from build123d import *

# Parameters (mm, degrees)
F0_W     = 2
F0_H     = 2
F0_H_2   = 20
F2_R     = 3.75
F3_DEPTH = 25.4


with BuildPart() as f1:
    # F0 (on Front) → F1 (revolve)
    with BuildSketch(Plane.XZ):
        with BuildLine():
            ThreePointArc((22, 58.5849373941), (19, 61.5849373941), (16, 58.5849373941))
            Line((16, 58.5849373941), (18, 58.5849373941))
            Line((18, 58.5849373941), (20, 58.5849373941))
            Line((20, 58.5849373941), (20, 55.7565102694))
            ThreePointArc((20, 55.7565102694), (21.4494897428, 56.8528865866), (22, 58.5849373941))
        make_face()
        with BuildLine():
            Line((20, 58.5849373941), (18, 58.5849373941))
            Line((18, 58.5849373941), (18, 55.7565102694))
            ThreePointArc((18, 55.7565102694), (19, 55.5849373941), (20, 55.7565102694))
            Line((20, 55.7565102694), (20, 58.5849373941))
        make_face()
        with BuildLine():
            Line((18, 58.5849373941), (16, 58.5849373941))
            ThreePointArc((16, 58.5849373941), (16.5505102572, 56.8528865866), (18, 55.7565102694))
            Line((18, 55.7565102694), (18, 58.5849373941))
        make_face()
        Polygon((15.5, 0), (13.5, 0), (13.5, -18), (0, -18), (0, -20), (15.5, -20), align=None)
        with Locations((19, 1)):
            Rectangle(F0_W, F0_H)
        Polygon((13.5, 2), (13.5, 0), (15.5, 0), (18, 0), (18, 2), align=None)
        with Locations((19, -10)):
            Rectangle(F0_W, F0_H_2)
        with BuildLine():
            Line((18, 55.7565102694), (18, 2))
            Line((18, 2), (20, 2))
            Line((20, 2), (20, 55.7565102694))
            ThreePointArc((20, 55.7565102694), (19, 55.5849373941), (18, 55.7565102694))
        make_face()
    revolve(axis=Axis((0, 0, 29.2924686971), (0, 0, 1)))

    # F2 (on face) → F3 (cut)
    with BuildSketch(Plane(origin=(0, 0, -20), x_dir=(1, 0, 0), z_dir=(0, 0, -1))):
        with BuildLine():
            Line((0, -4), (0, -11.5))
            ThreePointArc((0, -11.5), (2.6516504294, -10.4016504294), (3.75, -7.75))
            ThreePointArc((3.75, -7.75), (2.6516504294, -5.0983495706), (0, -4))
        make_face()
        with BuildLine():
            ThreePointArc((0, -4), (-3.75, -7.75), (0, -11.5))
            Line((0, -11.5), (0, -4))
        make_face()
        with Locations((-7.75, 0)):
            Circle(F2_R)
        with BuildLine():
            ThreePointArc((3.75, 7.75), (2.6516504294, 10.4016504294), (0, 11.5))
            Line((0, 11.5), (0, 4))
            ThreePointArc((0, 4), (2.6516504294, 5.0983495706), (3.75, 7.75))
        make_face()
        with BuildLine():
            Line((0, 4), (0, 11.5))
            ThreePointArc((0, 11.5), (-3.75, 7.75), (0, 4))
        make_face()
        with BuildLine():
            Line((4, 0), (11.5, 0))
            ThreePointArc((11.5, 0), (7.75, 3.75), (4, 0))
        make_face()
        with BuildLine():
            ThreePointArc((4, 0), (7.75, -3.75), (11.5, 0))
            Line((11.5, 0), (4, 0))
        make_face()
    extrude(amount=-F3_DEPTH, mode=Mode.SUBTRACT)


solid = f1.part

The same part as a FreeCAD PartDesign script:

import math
import FreeCAD as App
import Part
import Sketcher
from FreeCAD import Vector
Q = App.Units.Quantity

doc = App.newDocument("Part")
body = doc.addObject("PartDesign::Body", "Body")

# Sketch on XZ plane
sketch1 = doc.addObject("Sketcher::SketchObject", "Sketch")
body.addObject(sketch1)
sketch1.AttachmentSupport = (doc.XZ_Plane, [""])
sketch1.MapMode = "FlatFace"
sketch1.addGeometry(Part.ArcOfCircle(Part.Circle(Vector(19, 58.6, 0), Vector(0, 0, 1), 3), math.radians(0), math.radians(180)), False)
sketch1.addGeometry(Part.ArcOfCircle(Part.Circle(Vector(19, 58.6, 0), Vector(0, 0, 1), 3), math.radians(180), math.radians(251)), False)
sketch1.addGeometry(Part.LineSegment(Vector(18, 55.8, 0), Vector(18, 2, 0)), False)
sketch1.addGeometry(Part.LineSegment(Vector(18, 2, 0), Vector(13.5, 2, 0)), False)
sketch1.addGeometry(Part.LineSegment(Vector(13.5, 2, 0), Vector(13.5, -18, 0)), False)
sketch1.addGeometry(Part.LineSegment(Vector(13.5, -18, 0), Vector(0, -18, 0)), False)
sketch1.addGeometry(Part.LineSegment(Vector(0, -18, 0), Vector(0, -20, 0)), False)
sketch1.addGeometry(Part.LineSegment(Vector(0, -20, 0), Vector(15.5, -20, 0)), False)
sketch1.addGeometry(Part.LineSegment(Vector(15.5, -20, 0), Vector(15.5, 0, 0)), False)
sketch1.addGeometry(Part.LineSegment(Vector(15.5, 0, 0), Vector(18, 0, 0)), False)
sketch1.addGeometry(Part.LineSegment(Vector(18, 0, 0), Vector(18, -20, 0)), False)
sketch1.addGeometry(Part.LineSegment(Vector(18, -20, 0), Vector(20, -20, 0)), False)
sketch1.addGeometry(Part.LineSegment(Vector(20, -20, 0), Vector(20, 55.8, 0)), False)
sketch1.addGeometry(Part.ArcOfCircle(Part.Circle(Vector(19, 58.6, 0), Vector(0, 0, 1), 3), math.radians(-71), math.radians(0)), False)
sketch1.addConstraint(Sketcher.Constraint("Tangent", 0, 2, 1, 1))
sketch1.addConstraint(Sketcher.Constraint("Coincident", 1, 2, 2, 1))
sketch1.addConstraint(Sketcher.Constraint("Coincident", 2, 2, 3, 1))
sketch1.addConstraint(Sketcher.Constraint("Coincident", 3, 2, 4, 1))
sketch1.addConstraint(Sketcher.Constraint("Coincident", 4, 2, 5, 1))
sketch1.addConstraint(Sketcher.Constraint("Coincident", 5, 2, 6, 1))
sketch1.addConstraint(Sketcher.Constraint("Coincident", 6, 2, 7, 1))
sketch1.addConstraint(Sketcher.Constraint("Coincident", 7, 2, 8, 1))
sketch1.addConstraint(Sketcher.Constraint("Coincident", 8, 2, 9, 1))
sketch1.addConstraint(Sketcher.Constraint("Coincident", 9, 2, 10, 1))
sketch1.addConstraint(Sketcher.Constraint("Coincident", 10, 2, 11, 1))
sketch1.addConstraint(Sketcher.Constraint("Coincident", 11, 2, 12, 1))
sketch1.addConstraint(Sketcher.Constraint("Coincident", 12, 2, 13, 1))
sketch1.addConstraint(Sketcher.Constraint("Tangent", 13, 2, 0, 1))
sketch1.addConstraint(Sketcher.Constraint("Vertical", 2))
sketch1.addConstraint(Sketcher.Constraint("Horizontal", 3))
sketch1.addConstraint(Sketcher.Constraint("Vertical", 4))
sketch1.addConstraint(Sketcher.Constraint("Horizontal", 5))
sketch1.addConstraint(Sketcher.Constraint("Vertical", 6))
sketch1.addConstraint(Sketcher.Constraint("Horizontal", 7))
sketch1.addConstraint(Sketcher.Constraint("Vertical", 8))
sketch1.addConstraint(Sketcher.Constraint("Horizontal", 9))
sketch1.addConstraint(Sketcher.Constraint("Vertical", 10))
sketch1.addConstraint(Sketcher.Constraint("Horizontal", 11))
sketch1.addConstraint(Sketcher.Constraint("Vertical", 12))
sketch1.addConstraint(Sketcher.Constraint("Equal", 0, 1))
sketch1.addConstraint(Sketcher.Constraint("Equal", 1, 13))
sketch1.addConstraint(Sketcher.Constraint("PointOnObject", 5, 2, -2))
sketch1.addConstraint(Sketcher.Constraint("PointOnObject", 8, 2, -1))
sketch1.addConstraint(Sketcher.Constraint("Horizontal", 13, 3, 0, 2))
sketch1.addConstraint(Sketcher.Constraint("Horizontal", 7, 2, 10, 2))
sketch1.addConstraint(Sketcher.Constraint("Horizontal", 1, 2, 12, 2))
sketch1.addConstraint(Sketcher.Constraint("Horizontal", 0, 2, 13, 2))
sketch1.addConstraint(Sketcher.Constraint("Vertical", 2, 2, 9, 2))
sketch1.addConstraint(Sketcher.Constraint("Equal", 11, 6))
sketch1.addConstraint(Sketcher.Constraint("Equal", 4, 8))
sketch1.addConstraint(Sketcher.Constraint("Radius", 0, Q("3 mm")))
sketch1.addConstraint(Sketcher.Constraint("DistanceX", 11, 1, 11, 2, Q("2 mm")))
sketch1.addConstraint(Sketcher.Constraint("DistanceY", 4, 2, 4, 1, Q("20 mm")))
sketch1.addConstraint(Sketcher.Constraint("DistanceX", 3, 2, 3, 1, Q("4.5 mm")))
sketch1.addConstraint(Sketcher.Constraint("DistanceX", 5, 2, 5, 1, Q("13.5 mm")))
sketch1.addConstraint(Sketcher.Constraint("DistanceX", 7, 1, 7, 2, Q("15.5 mm")))
sketch1.addConstraint(Sketcher.Constraint("DistanceY", 2, 2, 2, 1, Q("53.75651 mm")))
revolution = doc.addObject("PartDesign::Revolution", "Revolution")
body.addObject(revolution)
revolution.Profile = sketch1
revolution.ReferenceAxis = (sketch1, ["V_Axis"])
revolution.Angle = 360

# Sketch on XY plane
sketch2 = doc.addObject("Sketcher::SketchObject", "Sketch001")
body.addObject(sketch2)
sketch2.AttachmentSupport = (doc.XY_Plane, [""])
sketch2.MapMode = "FlatFace"
sketch2.AttachmentOffset = App.Placement(Vector(0, 0, -20), App.Rotation())
sketch2.addGeometry(Part.ArcOfCircle(Part.Circle(Vector(0, 7.8, 0), Vector(0, 0, 1), 3.8), math.radians(0), math.radians(90)), False)
sketch2.addGeometry(Part.ArcOfCircle(Part.Circle(Vector(0, 7.8, 0), Vector(0, 0, 1), 3.8), math.radians(-90), math.radians(0)), False)
sketch2.addGeometry(Part.ArcOfCircle(Part.Circle(Vector(0, 7.8, 0), Vector(0, 0, 1), 3.8), math.radians(90), math.radians(270)), False)
sketch2.addGeometry(Part.Circle(Vector(-7.8, 0, 0), Vector(0, 0, 1), 3.8), False)
sketch2.addGeometry(Part.ArcOfCircle(Part.Circle(Vector(0, -7.8, 0), Vector(0, 0, 1), 3.8), math.radians(-90), math.radians(0)), False)
sketch2.addGeometry(Part.ArcOfCircle(Part.Circle(Vector(0, -7.8, 0), Vector(0, 0, 1), 3.8), math.radians(90), math.radians(270)), False)
sketch2.addGeometry(Part.ArcOfCircle(Part.Circle(Vector(0, -7.8, 0), Vector(0, 0, 1), 3.8), math.radians(0), math.radians(90)), False)
sketch2.addGeometry(Part.Circle(Vector(7.8, 0, 0), Vector(0, 0, 1), 3.8), False)
sketch2.addConstraint(Sketcher.Constraint("Tangent", 0, 1, 1, 2))
sketch2.addConstraint(Sketcher.Constraint("Tangent", 1, 1, 2, 2))
sketch2.addConstraint(Sketcher.Constraint("Tangent", 2, 1, 0, 2))
sketch2.addConstraint(Sketcher.Constraint("Tangent", 4, 1, 5, 2))
sketch2.addConstraint(Sketcher.Constraint("Tangent", 5, 1, 6, 2))
sketch2.addConstraint(Sketcher.Constraint("Tangent", 6, 1, 4, 2))
sketch2.addConstraint(Sketcher.Constraint("Equal", 2, 3))
sketch2.addConstraint(Sketcher.Constraint("Equal", 3, 4))
sketch2.addConstraint(Sketcher.Constraint("Equal", 6, 7))
sketch2.addConstraint(Sketcher.Constraint("Symmetric", 0, 3, 4, 3, -1, 1))
sketch2.addConstraint(Sketcher.Constraint("Symmetric", 3, 3, 7, 3, -1, 1))
sketch2.addConstraint(Sketcher.Constraint("Symmetric", 0, 1, 6, 1, -1))
sketch2.addConstraint(Sketcher.Constraint("PointOnObject", 3, 3, -1))
sketch2.addConstraint(Sketcher.Constraint("PointOnObject", 1, 1, -2))
sketch2.addConstraint(Sketcher.Constraint("PointOnObject", 2, 1, -2))
sketch2.addConstraint(Sketcher.Constraint("PointOnObject", 4, 1, -2))
sketch2.addConstraint(Sketcher.Constraint("PointOnObject", 5, 1, -2))
sketch2.addConstraint(Sketcher.Constraint("Horizontal", 2, 3, 0, 1))
sketch2.addConstraint(Sketcher.Constraint("Diameter", 3, Q("7.5 mm")))
sketch2.addConstraint(Sketcher.Constraint("DistanceY", -1, 1, 1, 1, Q("4 mm")))
sketch2.addConstraint(Sketcher.Constraint("DistanceX", 0, 1, 7, 3, Q("4 mm")))
pocket1 = doc.addObject("PartDesign::Pocket", "Pocket")
body.addObject(pocket1)
pocket1.Profile = sketch2
pocket1.Length = 25.4
pocket1.Reversed = True

doc.recompute()
